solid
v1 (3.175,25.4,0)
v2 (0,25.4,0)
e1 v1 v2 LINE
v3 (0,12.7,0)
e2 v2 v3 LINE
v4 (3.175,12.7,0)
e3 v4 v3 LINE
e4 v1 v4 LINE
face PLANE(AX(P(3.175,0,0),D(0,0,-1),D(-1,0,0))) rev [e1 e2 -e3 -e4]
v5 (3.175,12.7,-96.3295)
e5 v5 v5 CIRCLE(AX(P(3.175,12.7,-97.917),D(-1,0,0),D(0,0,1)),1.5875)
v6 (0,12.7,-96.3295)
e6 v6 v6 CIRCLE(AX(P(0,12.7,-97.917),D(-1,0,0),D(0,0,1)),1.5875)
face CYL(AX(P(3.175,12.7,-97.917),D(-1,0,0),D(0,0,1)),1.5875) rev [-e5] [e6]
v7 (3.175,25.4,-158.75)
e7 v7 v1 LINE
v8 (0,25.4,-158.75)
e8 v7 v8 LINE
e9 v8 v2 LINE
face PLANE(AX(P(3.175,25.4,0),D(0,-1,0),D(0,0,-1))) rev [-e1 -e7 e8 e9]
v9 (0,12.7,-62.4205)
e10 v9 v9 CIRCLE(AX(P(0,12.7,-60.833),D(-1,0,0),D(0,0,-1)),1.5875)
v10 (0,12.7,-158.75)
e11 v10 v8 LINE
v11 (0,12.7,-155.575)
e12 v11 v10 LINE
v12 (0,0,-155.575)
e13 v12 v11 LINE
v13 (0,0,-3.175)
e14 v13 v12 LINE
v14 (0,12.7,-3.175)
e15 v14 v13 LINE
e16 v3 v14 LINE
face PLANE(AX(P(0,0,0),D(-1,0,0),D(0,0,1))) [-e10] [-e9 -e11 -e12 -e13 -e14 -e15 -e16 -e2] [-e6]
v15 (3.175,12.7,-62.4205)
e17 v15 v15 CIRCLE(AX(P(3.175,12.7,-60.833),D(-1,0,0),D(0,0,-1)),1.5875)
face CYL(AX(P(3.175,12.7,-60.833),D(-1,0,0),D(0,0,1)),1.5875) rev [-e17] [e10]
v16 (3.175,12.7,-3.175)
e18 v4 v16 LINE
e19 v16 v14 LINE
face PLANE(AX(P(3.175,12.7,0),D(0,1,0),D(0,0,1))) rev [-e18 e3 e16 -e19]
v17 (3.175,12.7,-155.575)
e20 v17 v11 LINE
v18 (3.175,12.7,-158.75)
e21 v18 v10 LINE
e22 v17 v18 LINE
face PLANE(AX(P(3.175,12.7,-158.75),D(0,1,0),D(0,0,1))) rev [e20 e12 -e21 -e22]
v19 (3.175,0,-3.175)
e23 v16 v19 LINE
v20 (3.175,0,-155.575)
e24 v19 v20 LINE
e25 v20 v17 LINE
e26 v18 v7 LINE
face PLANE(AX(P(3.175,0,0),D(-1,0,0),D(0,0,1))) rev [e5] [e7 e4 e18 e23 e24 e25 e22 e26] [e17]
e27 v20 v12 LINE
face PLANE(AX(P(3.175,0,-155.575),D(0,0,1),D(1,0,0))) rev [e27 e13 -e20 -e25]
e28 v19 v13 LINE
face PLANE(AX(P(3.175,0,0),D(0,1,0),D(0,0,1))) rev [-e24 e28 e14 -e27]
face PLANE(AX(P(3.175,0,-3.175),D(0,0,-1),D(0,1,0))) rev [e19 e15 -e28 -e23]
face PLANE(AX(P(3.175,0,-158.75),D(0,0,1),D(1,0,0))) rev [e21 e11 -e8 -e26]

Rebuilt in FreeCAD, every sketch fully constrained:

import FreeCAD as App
import Part
import Sketcher
from FreeCAD import Vector
Q = App.Units.Quantity

doc = App.newDocument("Part")
body = doc.addObject("PartDesign::Body", "Body")

# Sketch on YZ plane
sketch1 = body.newObject("Sketcher::SketchObject", "Sketch")
sketch1.AttachmentSupport = (doc.getObject("YZ_Plane"), [""])
sketch1.MapMode = "FlatFace"
sketch1.addGeometry(Part.LineSegment(Vector(25.4, 0, 0), Vector(0, 0, 0)), False)
sketch1.addGeometry(Part.LineSegment(Vector(0, 0, 0), Vector(0, -158.75, 0)), False)
sketch1.addGeometry(Part.LineSegment(Vector(0, -158.75, 0), Vector(25.4, -158.75, 0)), False)
sketch1.addGeometry(Part.LineSegment(Vector(25.4, -158.75, 0), Vector(25.4, 0, 0)), False)
sketch1.addConstraint(Sketcher.Constraint("Coincident", 0, 2, 1, 1))
sketch1.addConstraint(Sketcher.Constraint("Coincident", 1, 2, 2, 1))
sketch1.addConstraint(Sketcher.Constraint("Coincident", 2, 2, 3, 1))
sketch1.addConstraint(Sketcher.Constraint("Coincident", 3, 2, 0, 1))
sketch1.addConstraint(Sketcher.Constraint("Horizontal", 0))
sketch1.addConstraint(Sketcher.Constraint("Vertical", 1))
sketch1.addConstraint(Sketcher.Constraint("Horizontal", 2))
sketch1.addConstraint(Sketcher.Constraint("Vertical", 3))
sketch1.addConstraint(Sketcher.Constraint("Coincident", 0, 2, -1, 1))
sketch1.addConstraint(Sketcher.Constraint("DistanceX", 0, 2, 0, 1, Q("1 in")))
sketch1.addConstraint(Sketcher.Constraint("DistanceY", 1, 2, 1, 1, Q("6.25 in")))
pad1 = body.newObject("PartDesign::Pad", "Pad")
pad1.Profile = sketch1
pad1.Length = Q("0.125 in")

# Sketch on YZ plane
sketch2 = body.newObject("Sketcher::SketchObject", "Sketch001")
sketch2.AttachmentSupport = (doc.getObject("YZ_Plane"), [""])
sketch2.MapMode = "FlatFace"
sketch2.addGeometry(Part.Circle(Vector(12.7, -97.917, 0), Vector(0, 0, 1), 1.5875), False)
sketch2.addGeometry(Part.Circle(Vector(12.7, -60.833, 0), Vector(0, 0, 1), 1.5875), False)
sketch2.addGeometry(Part.LineSegment(Vector(12.7, -3.175, 0), Vector(0, -3.175, 0)), False)
sketch2.addGeometry(Part.LineSegment(Vector(0, -3.175, 0), Vector(0, 0, 0)), False)
sketch2.addGeometry(Part.LineSegment(Vector(0, 0, 0), Vector(12.7, 0, 0)), False)
sketch2.addGeometry(Part.LineSegment(Vector(12.7, 0, 0), Vector(12.7, -3.175, 0)), False)
sketch2.addGeometry(Part.LineSegment(Vector(12.7, -158.75, 0), Vector(0, -158.75, 0)), False)
sketch2.addGeometry(Part.LineSegment(Vector(0, -158.75, 0), Vector(0, -155.575, 0)), False)
sketch2.addGeometry(Part.LineSegment(Vector(0, -155.575, 0), Vector(12.7, -155.575, 0)), False)
sketch2.addGeometry(Part.LineSegment(Vector(12.7, -155.575, 0), Vector(12.7, -158.75, 0)), False)
sketch2.addConstraint(Sketcher.Constraint("Coincident", 2, 2, 3, 1))
sketch2.addConstraint(Sketcher.Constraint("Coincident", 3, 2, 4, 1))
sketch2.addConstraint(Sketcher.Constraint("Coincident", 4, 2, 5, 1))
sketch2.addConstraint(Sketcher.Constraint("Coincident", 5, 2, 2, 1))
sketch2.addConstraint(Sketcher.Constraint("Coincident", 6, 2, 7, 1))
sketch2.addConstraint(Sketcher.Constraint("Coincident", 7, 2, 8, 1))
sketch2.addConstraint(Sketcher.Constraint("Coincident", 8, 2, 9, 1))
sketch2.addConstraint(Sketcher.Constraint("Coincident", 9, 2, 6, 1))
sketch2.addConstraint(Sketcher.Constraint("Horizontal", 2))
sketch2.addConstraint(Sketcher.Constraint("Vertical", 3))
sketch2.addConstraint(Sketcher.Constraint("Horizontal", 4))
sketch2.addConstraint(Sketcher.Constraint("Vertical", 5))
sketch2.addConstraint(Sketcher.Constraint("Horizontal", 6))
sketch2.addConstraint(Sketcher.Constraint("Vertical", 7))
sketch2.addConstraint(Sketcher.Constraint("Horizontal", 8))
sketch2.addConstraint(Sketcher.Constraint("Vertical", 9))
sketch2.addConstraint(Sketcher.Constraint("Coincident", 3, 2, -1, 1))
sketch2.addConstraint(Sketcher.Constraint("Equal", 0, 1))
sketch2.addConstraint(Sketcher.Constraint("PointOnObject", 6, 2, -2))
sketch2.addConstraint(Sketcher.Constraint("Vertical", 0, 3, 1, 3))
sketch2.addConstraint(Sketcher.Constraint("Vertical", 1, 3, 4, 2))
sketch2.addConstraint(Sketcher.Constraint("Vertical", 5, 2, 8, 2))
sketch2.addConstraint(Sketcher.Constraint("Equal", 5, 7))
sketch2.addConstraint(Sketcher.Constraint("Diameter", 0, Q("0.125 in")))
sketch2.addConstraint(Sketcher.Constraint("DistanceX", 2, 2, 2, 1, Q("0.5 in")))
sketch2.addConstraint(Sketcher.Constraint("DistanceY", 7, 2, 2, 2, Q("6 in")))
sketch2.addConstraint(Sketcher.Constraint("DistanceY", 3, 1, 3, 2, Q("0.125 in")))
sketch2.addConstraint(Sketcher.Constraint("DistanceY", 0, 3, 1, 3, Q("1.46 in")))
sketch2.addConstraint(Sketcher.Constraint("DistanceY", 1, 3, 2, 2, Q("2.27 in")))
pocket1 = body.newObject("PartDesign::Pocket", "Pocket")
pocket1.Profile = sketch2
pocket1.Type = "ThroughAll"
pocket1.Reversed = True

doc.recompute()
